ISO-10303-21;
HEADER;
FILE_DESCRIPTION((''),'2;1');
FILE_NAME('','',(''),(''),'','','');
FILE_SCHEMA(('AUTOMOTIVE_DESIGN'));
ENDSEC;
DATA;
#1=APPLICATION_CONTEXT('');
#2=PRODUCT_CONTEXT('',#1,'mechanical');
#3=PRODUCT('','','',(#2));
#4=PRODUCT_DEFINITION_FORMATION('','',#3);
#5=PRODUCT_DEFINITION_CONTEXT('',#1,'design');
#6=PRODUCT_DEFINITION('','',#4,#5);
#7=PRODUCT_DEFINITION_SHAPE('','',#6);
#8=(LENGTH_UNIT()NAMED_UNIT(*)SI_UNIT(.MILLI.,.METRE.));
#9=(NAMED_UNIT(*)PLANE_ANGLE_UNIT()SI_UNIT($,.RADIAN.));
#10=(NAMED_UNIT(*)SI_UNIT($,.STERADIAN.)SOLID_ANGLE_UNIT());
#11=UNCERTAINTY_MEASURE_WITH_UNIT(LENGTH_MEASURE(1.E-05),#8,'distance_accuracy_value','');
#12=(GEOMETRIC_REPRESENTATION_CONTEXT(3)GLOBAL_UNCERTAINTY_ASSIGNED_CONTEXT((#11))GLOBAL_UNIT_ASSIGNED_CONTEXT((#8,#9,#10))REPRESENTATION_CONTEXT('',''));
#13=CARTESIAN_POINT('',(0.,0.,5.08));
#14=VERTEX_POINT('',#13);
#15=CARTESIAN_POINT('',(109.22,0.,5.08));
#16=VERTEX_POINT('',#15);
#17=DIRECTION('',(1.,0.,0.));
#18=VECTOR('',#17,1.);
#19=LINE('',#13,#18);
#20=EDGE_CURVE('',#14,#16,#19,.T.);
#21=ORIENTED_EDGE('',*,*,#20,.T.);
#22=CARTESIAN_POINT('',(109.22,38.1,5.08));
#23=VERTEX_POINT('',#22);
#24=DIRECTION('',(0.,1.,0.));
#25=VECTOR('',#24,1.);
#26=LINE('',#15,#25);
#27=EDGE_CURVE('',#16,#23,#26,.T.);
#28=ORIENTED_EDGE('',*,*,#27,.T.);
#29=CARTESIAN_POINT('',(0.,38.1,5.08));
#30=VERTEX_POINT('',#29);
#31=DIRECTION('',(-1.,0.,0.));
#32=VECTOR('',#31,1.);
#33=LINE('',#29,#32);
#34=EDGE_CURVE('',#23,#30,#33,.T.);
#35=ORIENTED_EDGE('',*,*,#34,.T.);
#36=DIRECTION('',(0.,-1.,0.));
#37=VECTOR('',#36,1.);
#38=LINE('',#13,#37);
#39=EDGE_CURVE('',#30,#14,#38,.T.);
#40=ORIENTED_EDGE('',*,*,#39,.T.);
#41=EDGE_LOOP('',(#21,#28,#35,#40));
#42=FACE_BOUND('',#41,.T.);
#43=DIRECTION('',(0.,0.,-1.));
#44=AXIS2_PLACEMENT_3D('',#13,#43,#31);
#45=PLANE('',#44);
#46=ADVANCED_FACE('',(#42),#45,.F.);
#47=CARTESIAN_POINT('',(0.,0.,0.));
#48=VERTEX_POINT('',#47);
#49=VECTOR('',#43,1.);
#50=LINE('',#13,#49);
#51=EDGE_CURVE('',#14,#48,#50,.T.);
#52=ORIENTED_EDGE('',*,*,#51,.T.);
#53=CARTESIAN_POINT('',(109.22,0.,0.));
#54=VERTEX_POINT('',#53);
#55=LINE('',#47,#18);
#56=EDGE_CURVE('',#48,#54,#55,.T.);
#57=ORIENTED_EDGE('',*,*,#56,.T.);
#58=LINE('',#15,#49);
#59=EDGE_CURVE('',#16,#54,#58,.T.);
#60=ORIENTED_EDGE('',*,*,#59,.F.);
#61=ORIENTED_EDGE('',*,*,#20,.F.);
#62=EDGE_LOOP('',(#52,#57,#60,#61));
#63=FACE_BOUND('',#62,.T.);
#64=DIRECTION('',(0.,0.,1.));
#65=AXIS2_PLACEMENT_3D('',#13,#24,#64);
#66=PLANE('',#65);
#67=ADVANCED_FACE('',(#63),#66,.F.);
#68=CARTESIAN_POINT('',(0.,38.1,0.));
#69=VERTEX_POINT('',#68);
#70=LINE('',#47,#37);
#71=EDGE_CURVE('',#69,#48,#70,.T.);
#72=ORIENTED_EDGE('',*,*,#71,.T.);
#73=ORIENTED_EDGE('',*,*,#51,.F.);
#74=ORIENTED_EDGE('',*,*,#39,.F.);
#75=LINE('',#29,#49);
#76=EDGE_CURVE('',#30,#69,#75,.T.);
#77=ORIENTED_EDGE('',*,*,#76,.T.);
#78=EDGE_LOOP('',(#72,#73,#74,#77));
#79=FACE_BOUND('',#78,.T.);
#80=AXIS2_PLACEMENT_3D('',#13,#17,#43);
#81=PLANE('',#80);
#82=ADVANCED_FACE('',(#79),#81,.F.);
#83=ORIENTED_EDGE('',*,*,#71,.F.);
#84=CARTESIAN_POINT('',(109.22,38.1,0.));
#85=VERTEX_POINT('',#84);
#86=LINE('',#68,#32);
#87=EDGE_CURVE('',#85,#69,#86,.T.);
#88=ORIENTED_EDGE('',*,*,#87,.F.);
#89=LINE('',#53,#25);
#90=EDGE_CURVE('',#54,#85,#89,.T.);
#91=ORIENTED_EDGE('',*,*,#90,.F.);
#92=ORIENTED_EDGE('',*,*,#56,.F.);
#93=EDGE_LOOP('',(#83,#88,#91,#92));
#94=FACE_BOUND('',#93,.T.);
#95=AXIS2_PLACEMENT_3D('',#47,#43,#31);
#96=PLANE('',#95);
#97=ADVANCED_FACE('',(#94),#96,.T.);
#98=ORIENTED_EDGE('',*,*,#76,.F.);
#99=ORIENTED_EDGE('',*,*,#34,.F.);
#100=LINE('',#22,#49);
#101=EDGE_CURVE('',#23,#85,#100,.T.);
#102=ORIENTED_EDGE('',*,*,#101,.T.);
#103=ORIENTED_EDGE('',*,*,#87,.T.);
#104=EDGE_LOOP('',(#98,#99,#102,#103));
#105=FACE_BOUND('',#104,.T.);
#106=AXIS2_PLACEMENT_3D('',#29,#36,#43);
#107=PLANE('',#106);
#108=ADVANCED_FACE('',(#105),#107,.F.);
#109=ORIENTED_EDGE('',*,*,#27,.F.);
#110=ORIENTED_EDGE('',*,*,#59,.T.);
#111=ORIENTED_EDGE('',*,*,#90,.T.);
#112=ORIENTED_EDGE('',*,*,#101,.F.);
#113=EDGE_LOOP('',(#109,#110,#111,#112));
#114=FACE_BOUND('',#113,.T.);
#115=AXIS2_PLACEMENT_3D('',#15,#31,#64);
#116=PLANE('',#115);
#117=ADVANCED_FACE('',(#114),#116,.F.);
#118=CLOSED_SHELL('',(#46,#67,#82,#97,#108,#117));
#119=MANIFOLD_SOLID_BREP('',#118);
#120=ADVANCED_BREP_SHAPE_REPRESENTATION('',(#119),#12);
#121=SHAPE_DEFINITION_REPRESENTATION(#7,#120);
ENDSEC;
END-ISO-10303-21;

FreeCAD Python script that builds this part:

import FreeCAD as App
import Part
import Sketcher
from FreeCAD import Vector
Q = App.Units.Quantity


def add_polygon(sketch, points):
    """Adds a closed chain of lines whose ends are joined by coincident constraints."""
    first, n = sketch.GeometryCount, len(points)
    for a, b in zip(points, points[1:] + points[:1]):
        sketch.addGeometry(Part.LineSegment(App.Vector(*a, 0), App.Vector(*b, 0)), False)
    for i in range(n):
        sketch.addConstraint(Sketcher.Constraint("Coincident", first + i, 2, first + (i + 1) % n, 1))

doc = App.newDocument("Part")
body = doc.addObject("PartDesign::Body", "Body")

# Sketch on XY plane
sketch1 = doc.addObject("Sketcher::SketchObject", "Sketch")
body.addObject(sketch1)
sketch1.AttachmentSupport = (doc.XY_Plane, [""])
sketch1.MapMode = "FlatFace"
add_polygon(sketch1, [(0, 38.1), (0, 0), (109.22, 0), (109.22, 38.1)])  # lines 0-3
sketch1.addConstraint([
    Sketcher.Constraint("Vertical", 0),
    Sketcher.Constraint("Horizontal", 1),
    Sketcher.Constraint("Vertical", 2),
    Sketcher.Constraint("Horizontal", 3),
    Sketcher.Constraint("Coincident", 0, 2, -1, 1),
    Sketcher.Constraint("DistanceX", 1, 1, 1, 2, Q("4.3 in")),
    Sketcher.Constraint("DistanceY", 0, 2, 0, 1, Q("1.5 in")),
])
pad1 = doc.addObject("PartDesign::Pad", "Pad")
body.addObject(pad1)
pad1.Profile = sketch1
pad1.Length = Q("0.2 in")

doc.recompute()
